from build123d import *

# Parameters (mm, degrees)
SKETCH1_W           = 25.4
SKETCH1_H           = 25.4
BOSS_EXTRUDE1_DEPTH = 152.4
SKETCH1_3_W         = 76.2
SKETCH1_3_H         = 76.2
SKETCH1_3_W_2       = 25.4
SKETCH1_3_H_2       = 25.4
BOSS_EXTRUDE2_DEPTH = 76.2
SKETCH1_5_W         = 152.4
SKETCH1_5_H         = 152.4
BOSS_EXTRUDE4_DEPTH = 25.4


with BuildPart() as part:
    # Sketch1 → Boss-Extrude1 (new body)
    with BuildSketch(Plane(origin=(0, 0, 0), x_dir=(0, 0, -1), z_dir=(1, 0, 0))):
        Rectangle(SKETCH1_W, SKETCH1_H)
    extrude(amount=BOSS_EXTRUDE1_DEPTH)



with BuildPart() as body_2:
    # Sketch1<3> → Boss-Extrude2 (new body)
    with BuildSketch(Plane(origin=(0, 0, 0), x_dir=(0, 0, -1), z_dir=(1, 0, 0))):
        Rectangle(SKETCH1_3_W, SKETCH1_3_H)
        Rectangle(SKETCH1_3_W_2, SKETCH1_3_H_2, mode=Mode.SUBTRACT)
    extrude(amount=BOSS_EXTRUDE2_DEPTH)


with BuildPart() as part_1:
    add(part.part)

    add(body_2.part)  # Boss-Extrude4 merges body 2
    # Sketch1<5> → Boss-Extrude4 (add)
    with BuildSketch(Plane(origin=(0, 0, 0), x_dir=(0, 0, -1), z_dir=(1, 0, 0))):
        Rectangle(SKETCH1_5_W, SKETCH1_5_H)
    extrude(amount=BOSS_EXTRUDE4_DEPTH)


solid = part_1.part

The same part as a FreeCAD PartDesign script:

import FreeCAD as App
import Part
import Sketcher

V = App.Vector
Q = App.Units.Quantity


def add_polygon(sketch, points):
    """Adds a closed chain of lines whose ends are joined by coincident constraints."""
    first, n = sketch.GeometryCount, len(points)
    for a, b in zip(points, points[1:] + points[:1]):
        sketch.addGeometry(Part.LineSegment(App.Vector(*a, 0), App.Vector(*b, 0)), False)
    for i in range(n):
        sketch.addConstraint(Sketcher.Constraint("Coincident", first + i, 2, first + (i + 1) % n, 1))

doc = App.newDocument("Part")
body = doc.addObject("PartDesign::Body", "Body")

# Sketch on YZ plane
sketch1 = body.newObject("Sketcher::SketchObject", "Sketch")
sketch1.AttachmentSupport = (doc.getObject("YZ_Plane"), [""])
sketch1.MapMode = "FlatFace"
add_polygon(sketch1, [(13, 13), (-13, 13), (-13, -13), (13, -13)])  # lines 0-3
sketch1.addConstraint([
    Sketcher.Constraint("Horizontal", 0),
    Sketcher.Constraint("Vertical", 1),
    Sketcher.Constraint("Horizontal", 2),
    Sketcher.Constraint("Vertical", 3),
    Sketcher.Constraint("Symmetric", 0, 2, 2, 2, -1, 1),
    Sketcher.Constraint("Equal", 2, 1),
    Sketcher.Constraint("DistanceX", 0, 2, 0, 1, Q("1 in")),
])
pad1 = body.newObject("PartDesign::Pad", "Pad")
pad1.Profile = sketch1
pad1.Length = Q("6 in")
body2 = doc.addObject("PartDesign::Body", "Body001")

# Sketch on YZ plane
sketch2 = body2.newObject("Sketcher::SketchObject", "Sketch001")
sketch2.AttachmentSupport = (doc.getObject("YZ_Plane001"), [""])
sketch2.MapMode = "FlatFace"
add_polygon(sketch2, [(38, 38), (-38, 38), (-38, -38), (38, -38)])  # lines 0-3
add_polygon(sketch2, [(-13, -13), (-13, 13), (13, 13), (13, -13)])  # lines 4-7
sketch2.addConstraint([
    Sketcher.Constraint("Horizontal", 0),
    Sketcher.Constraint("Vertical", 1),
    Sketcher.Constraint("Horizontal", 2),
    Sketcher.Constraint("Vertical", 3),
    Sketcher.Constraint("Vertical", 4),
    Sketcher.Constraint("Horizontal", 5),
    Sketcher.Constraint("Vertical", 6),
    Sketcher.Constraint("Horizontal", 7),
    Sketcher.Constraint("Symmetric", 0, 2, 2, 2, -1, 1),
    Sketcher.Constraint("Symmetric", 4, 2, 6, 2, -1, 1),
    Sketcher.Constraint("Equal", 2, 1),
    Sketcher.Constraint("Equal", 7, 4),
    Sketcher.Constraint("DistanceX", 0, 2, 0, 1, Q("3 in")),
    Sketcher.Constraint("DistanceX", 5, 1, 5, 2, Q("1 in")),
])
pad2 = body2.newObject("PartDesign::Pad", "Pad001")
pad2.Profile = sketch2
pad2.Length = Q("3 in")
doc.recompute()

boolean = body.newObject("PartDesign::Boolean", "Boolean")
boolean.Type = "Fuse"
boolean.addObjects([body2])

# Sketch on YZ plane
sketch3 = body.newObject("Sketcher::SketchObject", "Sketch002")
sketch3.AttachmentSupport = (doc.getObject("YZ_Plane"), [""])
sketch3.MapMode = "FlatFace"
add_polygon(sketch3, [(76, 76), (-76, 76), (-76, -76), (76, -76)])  # lines 0-3
sketch3.addConstraint([
    Sketcher.Constraint("Horizontal", 0),
    Sketcher.Constraint("Vertical", 1),
    Sketcher.Constraint("Horizontal", 2),
    Sketcher.Constraint("Vertical", 3),
    Sketcher.Constraint("Symmetric", 0, 2, 2, 2, -1, 1),
    Sketcher.Constraint("Equal", 2, 1),
    Sketcher.Constraint("DistanceX", 0, 2, 0, 1, Q("6 in")),
])
pad3 = body.newObject("PartDesign::Pad", "Pad002")
pad3.Profile = sketch3
pad3.Length = Q("1 in")

doc.recompute()
